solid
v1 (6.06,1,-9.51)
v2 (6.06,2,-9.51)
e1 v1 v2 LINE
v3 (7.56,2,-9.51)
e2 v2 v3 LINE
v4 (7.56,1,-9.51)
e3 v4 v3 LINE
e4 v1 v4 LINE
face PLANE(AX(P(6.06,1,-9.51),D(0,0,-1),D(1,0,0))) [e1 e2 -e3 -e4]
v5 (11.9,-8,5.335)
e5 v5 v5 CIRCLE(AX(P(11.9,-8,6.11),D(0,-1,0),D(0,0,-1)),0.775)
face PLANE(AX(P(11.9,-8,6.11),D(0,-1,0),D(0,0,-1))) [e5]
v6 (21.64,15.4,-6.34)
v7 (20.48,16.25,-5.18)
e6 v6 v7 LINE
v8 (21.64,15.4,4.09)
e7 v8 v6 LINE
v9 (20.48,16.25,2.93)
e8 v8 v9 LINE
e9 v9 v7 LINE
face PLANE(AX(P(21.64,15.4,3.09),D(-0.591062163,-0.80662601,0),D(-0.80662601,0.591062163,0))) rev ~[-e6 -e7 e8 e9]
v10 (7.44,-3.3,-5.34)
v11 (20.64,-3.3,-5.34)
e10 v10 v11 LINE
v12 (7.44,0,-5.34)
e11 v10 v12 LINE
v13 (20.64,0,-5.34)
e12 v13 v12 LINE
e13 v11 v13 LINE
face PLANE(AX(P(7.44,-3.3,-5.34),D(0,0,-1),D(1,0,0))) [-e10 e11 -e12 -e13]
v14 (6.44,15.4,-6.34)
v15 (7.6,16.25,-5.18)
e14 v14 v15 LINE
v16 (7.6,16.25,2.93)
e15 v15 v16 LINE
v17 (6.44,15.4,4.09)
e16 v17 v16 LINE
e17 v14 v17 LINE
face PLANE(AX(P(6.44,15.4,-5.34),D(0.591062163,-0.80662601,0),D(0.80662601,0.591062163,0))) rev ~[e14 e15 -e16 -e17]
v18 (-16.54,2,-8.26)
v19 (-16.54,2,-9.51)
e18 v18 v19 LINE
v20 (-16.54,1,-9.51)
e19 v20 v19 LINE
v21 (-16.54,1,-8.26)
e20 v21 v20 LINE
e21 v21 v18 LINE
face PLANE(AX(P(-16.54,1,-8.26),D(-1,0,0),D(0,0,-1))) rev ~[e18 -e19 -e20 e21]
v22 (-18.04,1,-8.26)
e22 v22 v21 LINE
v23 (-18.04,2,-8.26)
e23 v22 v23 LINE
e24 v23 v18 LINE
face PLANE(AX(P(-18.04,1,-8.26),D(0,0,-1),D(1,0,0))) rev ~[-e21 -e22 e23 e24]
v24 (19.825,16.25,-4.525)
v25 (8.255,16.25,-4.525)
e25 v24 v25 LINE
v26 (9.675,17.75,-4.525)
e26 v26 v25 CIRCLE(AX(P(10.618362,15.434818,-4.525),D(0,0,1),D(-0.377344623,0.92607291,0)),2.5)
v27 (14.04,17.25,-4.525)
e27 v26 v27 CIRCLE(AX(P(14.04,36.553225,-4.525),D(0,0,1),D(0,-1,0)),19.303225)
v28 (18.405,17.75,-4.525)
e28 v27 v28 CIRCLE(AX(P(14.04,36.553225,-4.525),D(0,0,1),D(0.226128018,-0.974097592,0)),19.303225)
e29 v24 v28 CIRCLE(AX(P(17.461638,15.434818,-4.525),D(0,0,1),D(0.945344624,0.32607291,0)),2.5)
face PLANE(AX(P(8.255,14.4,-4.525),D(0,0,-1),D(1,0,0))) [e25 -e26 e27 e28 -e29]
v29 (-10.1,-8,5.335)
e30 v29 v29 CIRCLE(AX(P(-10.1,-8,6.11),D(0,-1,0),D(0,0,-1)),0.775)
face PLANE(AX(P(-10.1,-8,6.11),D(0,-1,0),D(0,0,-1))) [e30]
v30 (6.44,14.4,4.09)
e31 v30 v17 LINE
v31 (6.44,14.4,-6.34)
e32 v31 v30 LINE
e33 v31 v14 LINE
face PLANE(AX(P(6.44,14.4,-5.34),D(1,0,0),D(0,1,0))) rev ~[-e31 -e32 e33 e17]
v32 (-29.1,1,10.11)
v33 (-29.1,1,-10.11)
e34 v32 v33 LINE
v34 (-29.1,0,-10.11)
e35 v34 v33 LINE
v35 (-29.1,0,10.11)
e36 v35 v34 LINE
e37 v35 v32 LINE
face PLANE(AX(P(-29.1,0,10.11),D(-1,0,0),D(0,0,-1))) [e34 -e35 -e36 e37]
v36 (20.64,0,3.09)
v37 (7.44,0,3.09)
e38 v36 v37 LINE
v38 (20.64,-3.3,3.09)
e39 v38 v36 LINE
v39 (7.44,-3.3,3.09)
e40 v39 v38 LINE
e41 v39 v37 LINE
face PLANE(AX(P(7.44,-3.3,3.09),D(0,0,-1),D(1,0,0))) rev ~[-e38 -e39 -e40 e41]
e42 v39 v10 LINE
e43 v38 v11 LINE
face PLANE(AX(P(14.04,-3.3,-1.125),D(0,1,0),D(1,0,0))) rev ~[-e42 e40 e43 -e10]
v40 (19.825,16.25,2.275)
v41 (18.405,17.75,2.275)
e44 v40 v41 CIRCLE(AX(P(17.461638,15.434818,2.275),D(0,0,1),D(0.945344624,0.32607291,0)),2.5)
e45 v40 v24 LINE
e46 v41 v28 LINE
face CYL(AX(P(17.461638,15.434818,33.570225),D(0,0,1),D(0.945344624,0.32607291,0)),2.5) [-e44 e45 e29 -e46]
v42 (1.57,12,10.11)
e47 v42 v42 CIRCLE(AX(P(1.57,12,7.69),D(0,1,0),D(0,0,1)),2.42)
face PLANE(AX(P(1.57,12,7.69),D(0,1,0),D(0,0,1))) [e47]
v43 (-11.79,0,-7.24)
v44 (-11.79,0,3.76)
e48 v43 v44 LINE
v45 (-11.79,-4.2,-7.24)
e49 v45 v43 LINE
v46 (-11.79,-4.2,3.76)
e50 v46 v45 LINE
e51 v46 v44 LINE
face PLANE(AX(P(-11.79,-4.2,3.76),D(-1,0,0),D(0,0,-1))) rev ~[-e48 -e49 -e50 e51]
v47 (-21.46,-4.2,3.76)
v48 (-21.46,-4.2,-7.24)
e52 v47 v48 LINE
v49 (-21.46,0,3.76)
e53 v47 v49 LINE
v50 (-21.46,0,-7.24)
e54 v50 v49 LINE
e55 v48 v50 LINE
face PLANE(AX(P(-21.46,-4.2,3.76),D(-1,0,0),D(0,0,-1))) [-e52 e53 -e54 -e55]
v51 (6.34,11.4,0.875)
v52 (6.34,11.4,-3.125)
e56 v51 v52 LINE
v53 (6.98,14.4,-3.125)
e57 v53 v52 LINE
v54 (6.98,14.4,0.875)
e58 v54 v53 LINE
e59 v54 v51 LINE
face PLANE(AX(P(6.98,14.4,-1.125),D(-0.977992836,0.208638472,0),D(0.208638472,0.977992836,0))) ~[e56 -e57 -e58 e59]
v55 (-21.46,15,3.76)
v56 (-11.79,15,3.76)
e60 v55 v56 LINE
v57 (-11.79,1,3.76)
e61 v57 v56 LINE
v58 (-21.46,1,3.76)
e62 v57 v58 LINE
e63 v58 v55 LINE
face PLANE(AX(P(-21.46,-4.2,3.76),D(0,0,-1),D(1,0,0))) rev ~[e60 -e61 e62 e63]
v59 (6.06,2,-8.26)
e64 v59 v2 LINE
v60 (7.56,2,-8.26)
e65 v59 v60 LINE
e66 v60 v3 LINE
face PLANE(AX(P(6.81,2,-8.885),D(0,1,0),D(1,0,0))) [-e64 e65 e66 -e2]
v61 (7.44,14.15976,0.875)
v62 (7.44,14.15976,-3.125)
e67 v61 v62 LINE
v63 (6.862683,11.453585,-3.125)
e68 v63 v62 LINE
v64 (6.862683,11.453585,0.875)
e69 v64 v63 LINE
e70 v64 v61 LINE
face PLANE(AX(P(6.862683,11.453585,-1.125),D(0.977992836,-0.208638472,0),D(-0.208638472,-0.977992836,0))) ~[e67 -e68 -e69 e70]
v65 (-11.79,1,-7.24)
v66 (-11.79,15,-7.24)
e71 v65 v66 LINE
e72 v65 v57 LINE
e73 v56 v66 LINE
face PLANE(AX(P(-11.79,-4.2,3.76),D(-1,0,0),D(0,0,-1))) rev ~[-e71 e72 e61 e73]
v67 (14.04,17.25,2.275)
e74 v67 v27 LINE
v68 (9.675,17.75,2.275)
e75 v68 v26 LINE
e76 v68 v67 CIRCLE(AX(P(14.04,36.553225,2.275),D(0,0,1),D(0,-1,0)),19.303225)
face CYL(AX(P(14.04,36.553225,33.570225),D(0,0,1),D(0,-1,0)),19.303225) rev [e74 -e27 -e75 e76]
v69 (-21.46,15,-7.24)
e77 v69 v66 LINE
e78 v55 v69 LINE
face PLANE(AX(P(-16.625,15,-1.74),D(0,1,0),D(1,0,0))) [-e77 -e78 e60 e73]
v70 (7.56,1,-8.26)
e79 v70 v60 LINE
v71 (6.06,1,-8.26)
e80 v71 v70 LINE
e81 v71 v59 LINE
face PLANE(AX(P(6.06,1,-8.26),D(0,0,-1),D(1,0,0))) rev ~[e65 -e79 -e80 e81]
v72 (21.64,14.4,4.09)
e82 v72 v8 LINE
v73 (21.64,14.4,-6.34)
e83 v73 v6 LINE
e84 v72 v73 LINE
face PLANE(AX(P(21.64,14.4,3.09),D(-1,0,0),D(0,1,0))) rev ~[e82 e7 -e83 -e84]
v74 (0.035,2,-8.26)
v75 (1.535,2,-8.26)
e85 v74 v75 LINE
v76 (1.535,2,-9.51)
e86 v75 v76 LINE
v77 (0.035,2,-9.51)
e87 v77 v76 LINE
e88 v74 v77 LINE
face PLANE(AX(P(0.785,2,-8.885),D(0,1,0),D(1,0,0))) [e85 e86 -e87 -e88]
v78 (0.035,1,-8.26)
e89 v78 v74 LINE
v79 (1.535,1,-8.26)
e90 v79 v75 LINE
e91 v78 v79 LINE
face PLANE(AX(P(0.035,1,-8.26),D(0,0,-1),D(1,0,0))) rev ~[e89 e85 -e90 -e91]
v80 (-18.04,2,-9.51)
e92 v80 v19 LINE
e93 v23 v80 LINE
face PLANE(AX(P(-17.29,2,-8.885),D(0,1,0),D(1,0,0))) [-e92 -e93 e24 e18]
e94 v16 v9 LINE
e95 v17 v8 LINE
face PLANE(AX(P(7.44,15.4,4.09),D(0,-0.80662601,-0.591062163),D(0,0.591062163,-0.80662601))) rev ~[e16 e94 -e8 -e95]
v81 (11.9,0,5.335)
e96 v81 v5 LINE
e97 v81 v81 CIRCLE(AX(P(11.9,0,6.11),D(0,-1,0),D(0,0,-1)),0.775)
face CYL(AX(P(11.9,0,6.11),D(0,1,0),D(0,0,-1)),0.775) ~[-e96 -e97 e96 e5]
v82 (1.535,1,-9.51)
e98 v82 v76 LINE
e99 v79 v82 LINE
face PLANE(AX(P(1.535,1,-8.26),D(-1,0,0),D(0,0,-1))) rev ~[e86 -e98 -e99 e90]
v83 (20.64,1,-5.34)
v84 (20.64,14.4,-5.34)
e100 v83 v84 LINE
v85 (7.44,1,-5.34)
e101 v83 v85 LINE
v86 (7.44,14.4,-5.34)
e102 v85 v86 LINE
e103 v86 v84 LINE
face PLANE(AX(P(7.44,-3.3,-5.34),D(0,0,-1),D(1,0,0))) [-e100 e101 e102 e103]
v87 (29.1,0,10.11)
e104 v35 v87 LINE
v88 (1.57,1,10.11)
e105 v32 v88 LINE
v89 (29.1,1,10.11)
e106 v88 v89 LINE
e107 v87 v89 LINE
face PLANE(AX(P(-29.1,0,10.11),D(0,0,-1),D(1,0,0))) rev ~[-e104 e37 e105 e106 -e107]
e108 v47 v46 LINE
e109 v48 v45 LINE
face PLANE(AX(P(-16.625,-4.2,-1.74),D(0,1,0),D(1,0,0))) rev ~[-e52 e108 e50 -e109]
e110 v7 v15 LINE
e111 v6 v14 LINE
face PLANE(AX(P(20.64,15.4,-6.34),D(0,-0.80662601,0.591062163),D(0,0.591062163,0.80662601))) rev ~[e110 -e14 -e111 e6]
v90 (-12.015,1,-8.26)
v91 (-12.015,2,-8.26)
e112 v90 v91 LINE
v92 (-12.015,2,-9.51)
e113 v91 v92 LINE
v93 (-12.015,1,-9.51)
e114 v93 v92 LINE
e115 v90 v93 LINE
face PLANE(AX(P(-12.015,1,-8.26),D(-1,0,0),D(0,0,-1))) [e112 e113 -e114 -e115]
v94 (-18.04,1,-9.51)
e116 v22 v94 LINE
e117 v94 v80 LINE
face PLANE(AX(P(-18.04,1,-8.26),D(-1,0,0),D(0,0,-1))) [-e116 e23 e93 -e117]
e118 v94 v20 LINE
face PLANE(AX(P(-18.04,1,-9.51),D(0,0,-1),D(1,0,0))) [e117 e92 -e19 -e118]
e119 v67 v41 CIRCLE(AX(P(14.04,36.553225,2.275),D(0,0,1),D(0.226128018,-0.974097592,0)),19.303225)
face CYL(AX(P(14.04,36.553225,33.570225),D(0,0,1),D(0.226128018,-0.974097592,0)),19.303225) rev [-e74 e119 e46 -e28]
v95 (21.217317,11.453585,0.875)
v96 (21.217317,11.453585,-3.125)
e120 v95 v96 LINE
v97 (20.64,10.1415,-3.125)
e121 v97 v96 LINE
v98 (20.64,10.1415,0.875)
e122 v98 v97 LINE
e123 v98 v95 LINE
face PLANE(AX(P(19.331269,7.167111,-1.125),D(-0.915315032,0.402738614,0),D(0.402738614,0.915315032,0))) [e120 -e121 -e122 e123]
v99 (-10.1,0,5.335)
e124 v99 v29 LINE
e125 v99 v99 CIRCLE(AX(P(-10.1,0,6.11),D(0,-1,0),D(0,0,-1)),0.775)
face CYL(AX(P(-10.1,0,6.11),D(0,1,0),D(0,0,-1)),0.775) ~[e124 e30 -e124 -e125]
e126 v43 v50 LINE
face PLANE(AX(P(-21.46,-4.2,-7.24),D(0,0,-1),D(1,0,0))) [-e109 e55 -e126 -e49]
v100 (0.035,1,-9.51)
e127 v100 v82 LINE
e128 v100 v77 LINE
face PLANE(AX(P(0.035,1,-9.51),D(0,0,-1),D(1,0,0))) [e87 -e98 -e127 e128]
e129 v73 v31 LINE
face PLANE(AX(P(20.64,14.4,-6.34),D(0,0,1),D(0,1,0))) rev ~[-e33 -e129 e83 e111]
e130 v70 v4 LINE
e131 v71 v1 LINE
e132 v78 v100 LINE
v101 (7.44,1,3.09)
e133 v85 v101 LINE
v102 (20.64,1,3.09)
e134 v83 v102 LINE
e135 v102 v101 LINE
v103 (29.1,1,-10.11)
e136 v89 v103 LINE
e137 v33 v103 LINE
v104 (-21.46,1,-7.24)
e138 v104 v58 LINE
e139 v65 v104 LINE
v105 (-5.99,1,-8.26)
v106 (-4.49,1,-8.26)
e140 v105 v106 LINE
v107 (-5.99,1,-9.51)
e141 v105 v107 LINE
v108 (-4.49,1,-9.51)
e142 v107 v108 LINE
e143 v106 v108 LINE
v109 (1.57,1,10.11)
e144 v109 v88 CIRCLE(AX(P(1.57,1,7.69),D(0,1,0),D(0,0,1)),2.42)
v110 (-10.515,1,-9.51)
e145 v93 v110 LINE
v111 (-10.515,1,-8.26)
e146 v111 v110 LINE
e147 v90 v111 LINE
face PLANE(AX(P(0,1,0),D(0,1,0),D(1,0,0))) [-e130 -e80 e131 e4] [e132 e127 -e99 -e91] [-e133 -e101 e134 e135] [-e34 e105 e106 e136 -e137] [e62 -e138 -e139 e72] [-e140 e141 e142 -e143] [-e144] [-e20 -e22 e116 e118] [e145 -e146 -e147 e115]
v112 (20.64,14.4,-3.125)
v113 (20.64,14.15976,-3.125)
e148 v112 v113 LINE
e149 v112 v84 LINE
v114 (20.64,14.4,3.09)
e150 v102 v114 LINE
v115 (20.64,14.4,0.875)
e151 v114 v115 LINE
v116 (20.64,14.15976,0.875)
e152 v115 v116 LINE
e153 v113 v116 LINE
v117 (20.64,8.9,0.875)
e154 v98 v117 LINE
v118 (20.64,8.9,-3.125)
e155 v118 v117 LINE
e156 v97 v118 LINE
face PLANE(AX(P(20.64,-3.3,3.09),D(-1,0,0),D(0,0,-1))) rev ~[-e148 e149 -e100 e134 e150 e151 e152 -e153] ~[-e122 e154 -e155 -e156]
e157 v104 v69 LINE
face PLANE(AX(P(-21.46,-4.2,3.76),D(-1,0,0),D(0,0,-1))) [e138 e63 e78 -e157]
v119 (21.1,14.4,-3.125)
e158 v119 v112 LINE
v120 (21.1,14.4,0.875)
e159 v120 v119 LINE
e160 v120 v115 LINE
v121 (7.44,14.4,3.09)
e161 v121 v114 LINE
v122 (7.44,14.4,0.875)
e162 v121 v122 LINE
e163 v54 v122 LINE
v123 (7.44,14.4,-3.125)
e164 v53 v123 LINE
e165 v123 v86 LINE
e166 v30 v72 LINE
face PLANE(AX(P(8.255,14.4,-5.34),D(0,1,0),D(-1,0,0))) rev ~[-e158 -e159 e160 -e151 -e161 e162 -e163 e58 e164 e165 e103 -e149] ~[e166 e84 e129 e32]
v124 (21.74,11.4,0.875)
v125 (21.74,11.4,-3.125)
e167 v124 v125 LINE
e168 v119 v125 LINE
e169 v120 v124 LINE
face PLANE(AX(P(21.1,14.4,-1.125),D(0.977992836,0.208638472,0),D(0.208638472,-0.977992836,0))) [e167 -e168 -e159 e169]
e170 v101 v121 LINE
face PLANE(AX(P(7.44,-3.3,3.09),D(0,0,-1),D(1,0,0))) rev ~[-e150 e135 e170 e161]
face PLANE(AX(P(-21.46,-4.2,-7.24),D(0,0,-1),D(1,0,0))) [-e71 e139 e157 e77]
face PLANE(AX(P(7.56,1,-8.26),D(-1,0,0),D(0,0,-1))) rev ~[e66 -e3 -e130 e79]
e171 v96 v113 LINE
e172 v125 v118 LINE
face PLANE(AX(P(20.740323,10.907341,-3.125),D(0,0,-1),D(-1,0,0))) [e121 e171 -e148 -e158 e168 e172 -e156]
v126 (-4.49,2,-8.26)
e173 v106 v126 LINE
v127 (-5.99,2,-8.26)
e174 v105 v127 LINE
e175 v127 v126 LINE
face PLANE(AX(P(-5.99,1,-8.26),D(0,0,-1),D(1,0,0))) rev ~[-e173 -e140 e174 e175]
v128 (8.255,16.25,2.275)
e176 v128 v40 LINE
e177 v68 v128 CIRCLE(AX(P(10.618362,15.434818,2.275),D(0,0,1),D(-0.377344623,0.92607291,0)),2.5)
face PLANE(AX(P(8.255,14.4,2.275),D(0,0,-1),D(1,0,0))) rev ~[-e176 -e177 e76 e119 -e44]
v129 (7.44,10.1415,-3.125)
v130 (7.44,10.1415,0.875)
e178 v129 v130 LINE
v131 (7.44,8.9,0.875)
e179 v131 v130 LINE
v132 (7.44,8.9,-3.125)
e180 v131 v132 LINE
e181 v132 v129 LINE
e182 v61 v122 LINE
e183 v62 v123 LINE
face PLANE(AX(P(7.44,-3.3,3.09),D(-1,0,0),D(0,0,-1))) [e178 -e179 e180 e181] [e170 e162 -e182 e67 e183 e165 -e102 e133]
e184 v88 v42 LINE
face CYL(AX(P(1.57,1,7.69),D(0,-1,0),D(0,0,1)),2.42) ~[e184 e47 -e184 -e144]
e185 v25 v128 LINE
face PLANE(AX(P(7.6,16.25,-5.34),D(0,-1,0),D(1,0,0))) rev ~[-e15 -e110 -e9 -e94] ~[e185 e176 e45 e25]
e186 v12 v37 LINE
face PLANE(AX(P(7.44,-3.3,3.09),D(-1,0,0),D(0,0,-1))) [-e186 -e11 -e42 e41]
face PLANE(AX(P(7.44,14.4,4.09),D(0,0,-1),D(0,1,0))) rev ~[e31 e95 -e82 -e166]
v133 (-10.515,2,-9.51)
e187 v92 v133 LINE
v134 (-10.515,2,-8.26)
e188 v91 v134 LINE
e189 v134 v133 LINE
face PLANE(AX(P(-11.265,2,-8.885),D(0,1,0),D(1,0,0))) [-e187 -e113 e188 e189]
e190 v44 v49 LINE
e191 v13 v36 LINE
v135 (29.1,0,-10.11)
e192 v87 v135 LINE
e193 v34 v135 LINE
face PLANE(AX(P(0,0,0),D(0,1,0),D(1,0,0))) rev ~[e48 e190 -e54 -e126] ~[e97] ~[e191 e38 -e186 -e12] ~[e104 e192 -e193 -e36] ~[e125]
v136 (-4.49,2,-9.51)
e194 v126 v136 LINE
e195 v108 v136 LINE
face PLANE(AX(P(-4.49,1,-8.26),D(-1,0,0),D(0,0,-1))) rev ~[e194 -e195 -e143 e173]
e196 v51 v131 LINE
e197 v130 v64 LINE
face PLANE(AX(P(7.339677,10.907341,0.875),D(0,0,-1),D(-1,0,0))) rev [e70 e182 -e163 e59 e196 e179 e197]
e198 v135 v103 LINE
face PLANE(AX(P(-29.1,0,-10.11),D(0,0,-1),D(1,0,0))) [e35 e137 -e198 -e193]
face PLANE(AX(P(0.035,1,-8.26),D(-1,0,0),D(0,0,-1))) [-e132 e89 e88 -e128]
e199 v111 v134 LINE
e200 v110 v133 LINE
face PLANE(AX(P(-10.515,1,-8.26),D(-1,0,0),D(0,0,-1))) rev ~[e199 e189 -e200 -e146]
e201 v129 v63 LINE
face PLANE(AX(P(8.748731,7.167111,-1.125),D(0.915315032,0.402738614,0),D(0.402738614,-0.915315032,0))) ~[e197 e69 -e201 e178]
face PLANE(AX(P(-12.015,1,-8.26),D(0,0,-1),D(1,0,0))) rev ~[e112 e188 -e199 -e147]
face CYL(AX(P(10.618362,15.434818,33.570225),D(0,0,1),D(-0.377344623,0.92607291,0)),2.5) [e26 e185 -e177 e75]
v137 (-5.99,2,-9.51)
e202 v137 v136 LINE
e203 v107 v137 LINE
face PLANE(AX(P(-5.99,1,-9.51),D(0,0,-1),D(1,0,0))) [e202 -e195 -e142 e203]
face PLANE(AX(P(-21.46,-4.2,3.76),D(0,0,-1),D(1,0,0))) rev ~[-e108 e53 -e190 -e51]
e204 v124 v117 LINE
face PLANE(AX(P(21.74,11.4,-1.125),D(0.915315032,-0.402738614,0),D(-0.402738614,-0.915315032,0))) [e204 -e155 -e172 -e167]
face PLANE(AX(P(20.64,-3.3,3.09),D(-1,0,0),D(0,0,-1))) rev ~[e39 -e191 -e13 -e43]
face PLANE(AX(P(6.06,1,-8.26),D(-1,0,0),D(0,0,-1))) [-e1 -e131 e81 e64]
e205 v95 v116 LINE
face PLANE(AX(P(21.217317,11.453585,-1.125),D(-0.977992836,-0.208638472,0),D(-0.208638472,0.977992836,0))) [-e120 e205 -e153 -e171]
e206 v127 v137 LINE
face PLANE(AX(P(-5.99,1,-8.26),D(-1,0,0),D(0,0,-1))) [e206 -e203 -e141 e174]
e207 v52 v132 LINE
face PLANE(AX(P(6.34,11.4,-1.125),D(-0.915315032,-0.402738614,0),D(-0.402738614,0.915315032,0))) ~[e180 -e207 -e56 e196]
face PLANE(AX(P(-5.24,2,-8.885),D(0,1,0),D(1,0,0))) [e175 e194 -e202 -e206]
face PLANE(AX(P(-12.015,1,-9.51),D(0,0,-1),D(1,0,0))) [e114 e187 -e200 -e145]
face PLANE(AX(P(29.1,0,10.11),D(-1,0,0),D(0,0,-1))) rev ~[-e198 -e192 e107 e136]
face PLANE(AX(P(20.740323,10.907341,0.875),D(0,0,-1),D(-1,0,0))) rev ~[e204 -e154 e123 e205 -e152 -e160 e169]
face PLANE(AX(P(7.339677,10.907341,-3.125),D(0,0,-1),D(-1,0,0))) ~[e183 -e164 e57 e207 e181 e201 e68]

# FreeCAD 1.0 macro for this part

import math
import FreeCAD as App
import Part
import Sketcher
from FreeCAD import Vector

doc = App.newDocument("Part")
params = doc.addObject("Spreadsheet::Sheet", "Params")
for row, (alias, value) in enumerate([
    ("sketch1_width", "58.2 mm"),
    ("sketch1_height", "20.22 mm"),
    ("pad1_length", "1 mm"),
    ("sketch2_height", "11 mm"),
    ("sketch2_width", "9.67 mm"),
    ("pad2_length", "14 mm"),
    ("pad2_length2", "5.2 mm"),
    ("sketch3_diameter", "4.84 mm"),
    ("pad3_length", "11 mm"),
    ("sketch4_width", "13.2 mm"),
    ("sketch4_height", "8.43 mm"),
    ("pad4_length", "13.4 mm"),
    ("pad4_length2", "4.3 mm"),
    ("sketch5_width", "1 mm"),
    ("sketch5_width2", "1.85 mm"),
    ("sketch6_width", "13.2 mm"),
    ("sketch6_height", "8.43 mm"),
    ("sketch7_height", "6.8 mm"),
    ("sketch7_width", "11.57 mm"),
    ("pad5_length", "3.35 mm"),
    ("sketch8_radius", "2.5 mm"),
    ("sketch8_height", "1.5 mm"),
    ("sketch8_width", "1.42 mm"),
    ("sketch8_width2", "8.73 mm"),
    ("sketch9_length", "0.5 mm"),
    ("pad6_length", "4 mm"),
    ("sketch10_diameter", "1.55 mm"),
    ("pad7_length", "8 mm"),
    ("sketch11_width", "1.5 mm"),
    ("sketch11_height", "1.25 mm"),
    ("pad8_length", "1 mm"),
], start=1):
    params.set(f"A{row}", alias)
    params.set(f"B{row}", "=" + value)
    params.setAlias(f"B{row}", alias)

body = doc.addObject("PartDesign::Body", "Body")

sketch1 = doc.addObject("Sketcher::SketchObject", "Sketch")
body.addObject(sketch1)
sketch1.AttachmentSupport = (doc.XZ_Plane, [""])
sketch1.MapMode = "FlatFace"
sketch1.addGeometry([
    Part.LineSegment(Vector(-29.1, -10.11, 0), Vector(-29.1, 10.11, 0)),
    Part.LineSegment(Vector(-29.1, 10.11, 0), Vector(29.1, 10.11, 0)),
    Part.LineSegment(Vector(29.1, 10.11, 0), Vector(29.1, -10.11, 0)),
    Part.LineSegment(Vector(29.1, -10.11, 0), Vector(-29.1, -10.11, 0)),
], False)
sketch1.addConstraint([
    Sketcher.Constraint("Coincident", 0, 2, 1, 1),
    Sketcher.Constraint("Coincident", 1, 2, 2, 1),
    Sketcher.Constraint("Coincident", 2, 2, 3, 1),
    Sketcher.Constraint("Coincident", 3, 2, 0, 1),
    Sketcher.Constraint("Vertical", 0),
    Sketcher.Constraint("Horizontal", 1),
    Sketcher.Constraint("Vertical", 2),
    Sketcher.Constraint("Horizontal", 3),
    Sketcher.Constraint("Symmetric", 0, 2, 2, 2, -1, 1),
    Sketcher.Constraint("DistanceX", 1, 1, 1, 2, 58.2),
    Sketcher.Constraint("DistanceY", 0, 1, 0, 2, 20.22),
])
sketch1.setExpression("Constraints[9]", "Params.sketch1_width")
sketch1.setExpression("Constraints[10]", "Params.sketch1_height")
pad1 = doc.addObject("PartDesign::Pad", "Pad")
body.addObject(pad1)
pad1.Profile = sketch1
pad1.setExpression("Length", "Params.pad1_length")
pad1.Reversed = True

sketch2 = doc.addObject("Sketcher::SketchObject", "Sketch001")
body.addObject(sketch2)
sketch2.AttachmentSupport = (doc.XZ_Plane, [""])
sketch2.MapMode = "FlatFace"
sketch2.AttachmentOffset = App.Placement(Vector(0, 0, -1), App.Rotation())
sketch2.addGeometry([
    Part.LineSegment(Vector(-21.46, -7.24, 0), Vector(-21.46, 3.76, 0)),
    Part.LineSegment(Vector(-21.46, 3.76, 0), Vector(-11.79, 3.76, 0)),
    Part.LineSegment(Vector(-11.79, 3.76, 0), Vector(-11.79, -7.24, 0)),
    Part.LineSegment(Vector(-11.79, -7.24, 0), Vector(-21.46, -7.24, 0)),
], False)
sketch2.addConstraint([
    Sketcher.Constraint("Coincident", 0, 2, 1, 1),
    Sketcher.Constraint("Coincident", 1, 2, 2, 1),
    Sketcher.Constraint("Coincident", 2, 2, 3, 1),
    Sketcher.Constraint("Coincident", 3, 2, 0, 1),
    Sketcher.Constraint("Vertical", 0),
    Sketcher.Constraint("Horizontal", 1),
    Sketcher.Constraint("Vertical", 2),
    Sketcher.Constraint("Horizontal", 3),
    Sketcher.Constraint("DistanceY", 0, 1, 0, 2, 11.0),
    Sketcher.Constraint("DistanceX", 1, 1, 1, 2, 9.67),
    Sketcher.Constraint("DistanceX", 0, 2, -1, 1, 21.46),
    Sketcher.Constraint("DistanceY", -1, 1, 0, 2, 3.76),
])
sketch2.setExpression("Constraints[8]", "Params.sketch2_height")
sketch2.setExpression("Constraints[9]", "Params.sketch2_width")
pad2 = doc.addObject("PartDesign::Pad", "Pad001")
body.addObject(pad2)
pad2.Profile = sketch2
pad2.Type = "TwoLengths"
pad2.setExpression("Length", "Params.pad2_length")
pad2.setExpression("Length2", "Params.pad2_length2")
pad2.Reversed = True

sketch3 = doc.addObject("Sketcher::SketchObject", "Sketch002")
body.addObject(sketch3)
sketch3.AttachmentSupport = (doc.XZ_Plane, [""])
sketch3.MapMode = "FlatFace"
sketch3.AttachmentOffset = App.Placement(Vector(0, 0, -1), App.Rotation())
sketch3.addGeometry(Part.Circle(Vector(1.57, 7.69, 0), Vector(0, 0, 1), 2.42), False)
sketch3.addConstraint([
    Sketcher.Constraint("Diameter", 0, 4.84),
    Sketcher.Constraint("DistanceX", -1, 1, 0, 3, 1.57),
    Sketcher.Constraint("DistanceY", -1, 1, 0, 3, 7.69),
])
sketch3.setExpression("Constraints[0]", "Params.sketch3_diameter")
pad3 = doc.addObject("PartDesign::Pad", "Pad002")
body.addObject(pad3)
pad3.Profile = sketch3
pad3.setExpression("Length", "Params.pad3_length")
pad3.Reversed = True

sketch4 = doc.addObject("Sketcher::SketchObject", "Sketch003")
body.addObject(sketch4)
sketch4.AttachmentSupport = (doc.XZ_Plane, [""])
sketch4.MapMode = "FlatFace"
sketch4.AttachmentOffset = App.Placement(Vector(0, 0, -1), App.Rotation())
sketch4.addGeometry([
    Part.LineSegment(Vector(7.44, -5.34, 0), Vector(7.44, 3.09, 0)),
    Part.LineSegment(Vector(7.44, 3.09, 0), Vector(20.64, 3.09, 0)),
    Part.LineSegment(Vector(20.64, 3.09, 0), Vector(20.64, -5.34, 0)),
    Part.LineSegment(Vector(20.64, -5.34, 0), Vector(7.44, -5.34, 0)),
], False)
sketch4.addConstraint([
    Sketcher.Constraint("Coincident", 0, 2, 1, 1),
    Sketcher.Constraint("Coincident", 1, 2, 2, 1),
    Sketcher.Constraint("Coincident", 2, 2, 3, 1),
    Sketcher.Constraint("Coincident", 3, 2, 0, 1),
    Sketcher.Constraint("Vertical", 0),
    Sketcher.Constraint("Horizontal", 1),
    Sketcher.Constraint("Vertical", 2),
    Sketcher.Constraint("Horizontal", 3),
    Sketcher.Constraint("DistanceX", 1, 1, 1, 2, 13.2),
    Sketcher.Constraint("DistanceY", 0, 1, 0, 2, 8.43),
    Sketcher.Constraint("DistanceX", -1, 1, 0, 2, 7.44),
    Sketcher.Constraint("DistanceY", -1, 1, 0, 2, 3.09),
])
sketch4.setExpression("Constraints[8]", "Params.sketch4_width")
sketch4.setExpression("Constraints[9]", "Params.sketch4_height")
pad4 = doc.addObject("PartDesign::Pad", "Pad003")
body.addObject(pad4)
pad4.Profile = sketch4
pad4.Type = "TwoLengths"
pad4.setExpression("Length", "Params.pad4_length")
pad4.setExpression("Length2", "Params.pad4_length2")
pad4.Reversed = True

sketch5 = doc.addObject("Sketcher::SketchObject", "Sketch004")
body.addObject(sketch5)
sketch5.AttachmentSupport = (doc.YZ_Plane, [""])
sketch5.MapMode = "FlatFace"
sketch5.AttachmentOffset = App.Placement(Vector(0, 0, 7.44), App.Rotation())
sketch5.addGeometry([
    Part.LineSegment(Vector(14.4, 4.09, 0), Vector(15.4, 4.09, 0)),
    Part.LineSegment(Vector(15.4, 4.09, 0), Vector(16.25, 2.93, 0)),
    Part.LineSegment(Vector(16.25, 2.93, 0), Vector(16.25, 2.275, 0)),
    Part.LineSegment(Vector(16.25, 2.275, 0), Vector(14.4, 2.275, 0)),
    Part.LineSegment(Vector(14.4, 2.275, 0), Vector(14.4, 4.09, 0)),
], False)
sketch5.addConstraint([
    Sketcher.Constraint("Coincident", 0, 2, 1, 1),
    Sketcher.Constraint("Coincident", 1, 2, 2, 1),
    Sketcher.Constraint("Coincident", 2, 2, 3, 1),
    Sketcher.Constraint("Coincident", 3, 2, 4, 1),
    Sketcher.Constraint("Coincident", 4, 2, 0, 1),
    Sketcher.Constraint("Horizontal", 0),
    Sketcher.Constraint("Vertical", 2),
    Sketcher.Constraint("Horizontal", 3),
    Sketcher.Constraint("Vertical", 4),
    Sketcher.Constraint("DistanceX", 0, 1, 0, 2, 1.0),
    Sketcher.Constraint("DistanceX", 3, 2, 3, 1, 1.85),
    Sketcher.Constraint("DistanceX", -1, 1, 0, 2, 15.4),
    Sketcher.Constraint("DistanceY", 2, 2, 2, 1, 0.655),
    Sketcher.Constraint("DistanceY", 4, 1, 4, 2, 1.815),
    Sketcher.Constraint("DistanceY", -1, 1, 0, 2, 4.09),
])
sketch5.setExpression("Constraints[9]", "Params.sketch5_width")
sketch5.setExpression("Constraints[10]", "Params.sketch5_width2")

sketch6 = doc.addObject("Sketcher::SketchObject", "Sketch005")
body.addObject(sketch6)
sketch6.AttachmentSupport = (doc.XZ_Plane, [""])
sketch6.MapMode = "FlatFace"
sketch6.AttachmentOffset = App.Placement(Vector(0, 0, -14.4), App.Rotation())
sketch6.addGeometry([
    Part.LineSegment(Vector(7.44, -5.34, 0), Vector(7.44, 3.09, 0)),
    Part.LineSegment(Vector(7.44, 3.09, 0), Vector(20.64, 3.09, 0)),
    Part.LineSegment(Vector(20.64, 3.09, 0), Vector(20.64, -5.34, 0)),
    Part.LineSegment(Vector(20.64, -5.34, 0), Vector(7.44, -5.34, 0)),
], False)
sketch6.addConstraint([
    Sketcher.Constraint("Coincident", 0, 2, 1, 1),
    Sketcher.Constraint("Coincident", 1, 2, 2, 1),
    Sketcher.Constraint("Coincident", 2, 2, 3, 1),
    Sketcher.Constraint("Coincident", 3, 2, 0, 1),
    Sketcher.Constraint("Vertical", 0),
    Sketcher.Constraint("Horizontal", 1),
    Sketcher.Constraint("Vertical", 2),
    Sketcher.Constraint("Horizontal", 3),
    Sketcher.Constraint("DistanceX", 1, 1, 1, 2, 13.2),
    Sketcher.Constraint("DistanceY", 0, 1, 0, 2, 8.43),
    Sketcher.Constraint("DistanceX", -1, 1, 0, 2, 7.44),
    Sketcher.Constraint("DistanceY", -1, 1, 0, 2, 3.09),
])
sketch6.setExpression("Constraints[8]", "Params.sketch6_width")
sketch6.setExpression("Constraints[9]", "Params.sketch6_height")
doc.recompute()

additivepipe = doc.addObject("PartDesign::AdditivePipe", "AdditivePipe")
body.addObject(additivepipe)
additivepipe.Profile = sketch5
additivepipe.Spine = (sketch6, ["Edge1", "Edge2", "Edge3", "Edge4"])
additivepipe.Transition = "Right corner"

sketch7 = doc.addObject("Sketcher::SketchObject", "Sketch006")
body.addObject(sketch7)
sketch7.AttachmentSupport = (doc.XZ_Plane, [""])
sketch7.MapMode = "FlatFace"
sketch7.AttachmentOffset = App.Placement(Vector(0, 0, -14.4), App.Rotation())
sketch7.addGeometry([
    Part.LineSegment(Vector(8.255, -4.525, 0), Vector(8.255, 2.275, 0)),
    Part.LineSegment(Vector(8.255, 2.275, 0), Vector(19.825, 2.275, 0)),
    Part.LineSegment(Vector(19.825, 2.275, 0), Vector(19.825, -4.525, 0)),
    Part.LineSegment(Vector(19.825, -4.525, 0), Vector(8.255, -4.525, 0)),
], False)
sketch7.addConstraint([
    Sketcher.Constraint("Coincident", 0, 2, 1, 1),
    Sketcher.Constraint("Coincident", 1, 2, 2, 1),
    Sketcher.Constraint("Coincident", 2, 2, 3, 1),
    Sketcher.Constraint("Coincident", 3, 2, 0, 1),
    Sketcher.Constraint("Vertical", 0),
    Sketcher.Constraint("Horizontal", 1),
    Sketcher.Constraint("Vertical", 2),
    Sketcher.Constraint("Horizontal", 3),
    Sketcher.Constraint("DistanceY", 0, 1, 0, 2, 6.8),
    Sketcher.Constraint("DistanceX", 1, 1, 1, 2, 11.57),
    Sketcher.Constraint("DistanceX", -1, 1, 0, 2, 8.255),
    Sketcher.Constraint("DistanceY", -1, 1, 0, 2, 2.275),
])
sketch7.setExpression("Constraints[8]", "Params.sketch7_height")
sketch7.setExpression("Constraints[9]", "Params.sketch7_width")
pad5 = doc.addObject("PartDesign::Pad", "Pad004")
body.addObject(pad5)
pad5.Profile = sketch7
pad5.setExpression("Length", "Params.pad5_length")
pad5.Reversed = True

sketch8 = doc.addObject("Sketcher::SketchObject", "Sketch007")
body.addObject(sketch8)
sketch8.AttachmentSupport = (doc.XY_Plane, [""])
sketch8.MapMode = "FlatFace"
sketch8.AttachmentOffset = App.Placement(Vector(0, 0, -4.525), App.Rotation())
sketch8.addGeometry([
    Part.ArcOfCircle(Part.Circle(Vector(17.461638, 15.434818, 0), Vector(0, 0, 1), 2.5), math.radians(19.03059), math.radians(67.830701)),
    Part.LineSegment(Vector(18.405, 17.75, 0), Vector(19.825, 17.75, 0)),
    Part.LineSegment(Vector(19.825, 17.75, 0), Vector(19.825, 16.25, 0)),
    Part.ArcOfCircle(Part.Circle(Vector(14.04, 36.553225, 0), Vector(0, 0, 1), 19.303225), math.radians(-90), math.radians(-76.930781)),
    Part.ArcOfCircle(Part.Circle(Vector(14.04, 36.553225, 0), Vector(0, 0, 1), 19.303225), math.radians(-103.069219), math.radians(-90)),
    Part.LineSegment(Vector(9.675, 17.75, 0), Vector(18.405, 17.75, 0)),
    Part.LineSegment(Vector(8.255, 17.75, 0), Vector(9.675, 17.75, 0)),
    Part.ArcOfCircle(Part.Circle(Vector(10.618362, 15.434818, 0), Vector(0, 0, 1), 2.5), math.radians(112.169299), math.radians(160.96941)),
    Part.LineSegment(Vector(8.255, 16.25, 0), Vector(8.255, 17.75, 0)),
], False)
sketch8.addConstraint([
    Sketcher.Constraint("Coincident", 0, 2, 1, 1),
    Sketcher.Constraint("Coincident", 1, 2, 2, 1),
    Sketcher.Constraint("Coincident", 2, 2, 0, 1),
    Sketcher.Constraint("Tangent", 3, 1, 4, 2),
    Sketcher.Constraint("Coincident", 4, 1, 5, 1),
    Sketcher.Constraint("Coincident", 5, 2, 3, 2),
    Sketcher.Constraint("Coincident", 6, 2, 7, 1),
    Sketcher.Constraint("Coincident", 7, 2, 8, 1),
    Sketcher.Constraint("Coincident", 8, 2, 6, 1),
    Sketcher.Constraint("Horizontal", 1),
    Sketcher.Constraint("Vertical", 2),
    Sketcher.Constraint("Horizontal", 5),
    Sketcher.Constraint("Horizontal", 6),
    Sketcher.Constraint("Vertical", 8),
    Sketcher.Constraint("Coincident", 5, 2, 0, 2),
    Sketcher.Constraint("Coincident", 6, 2, 4, 1),
    Sketcher.Constraint("Equal", 3, 4),
    Sketcher.Constraint("Equal", 0, 7),
    Sketcher.Constraint("Horizontal", 0, 3, 7, 3),
    Sketcher.Constraint("Horizontal", 2, 2, 7, 2),
    Sketcher.Constraint("Vertical", 4, 3, 3, 1),
    Sketcher.Constraint("Radius", 0, 2.5),
    Sketcher.Constraint("DistanceY", 2, 2, 2, 1, 1.5),
    Sketcher.Constraint("DistanceY", 2, 2, 3, 1, 1.0),
    Sketcher.Constraint("DistanceX", 1, 1, 1, 2, 1.42),
    Sketcher.Constraint("DistanceX", 5, 1, 5, 2, 8.73),
    Sketcher.Constraint("DistanceX", -1, 1, 3, 3, 14.04),
    Sketcher.Constraint("DistanceY", -1, 1, 0, 2, 17.75),
])
sketch8.setExpression("Constraints[21]", "Params.sketch8_radius")
sketch8.setExpression("Constraints[22]", "Params.sketch8_height")
sketch8.setExpression("Constraints[24]", "Params.sketch8_width")
sketch8.setExpression("Constraints[25]", "Params.sketch8_width2")
pocket1 = doc.addObject("PartDesign::Pocket", "Pocket")
body.addObject(pocket1)
pocket1.Profile = sketch8
pocket1.Type = "ThroughAll"
pocket1.Midplane = True

sketch9 = doc.addObject("Sketcher::SketchObject", "Sketch008")
body.addObject(sketch9)
sketch9.AttachmentSupport = (doc.XY_Plane, [""])
sketch9.MapMode = "FlatFace"
sketch9.AttachmentOffset = App.Placement(Vector(0, 0, -1.125), App.Rotation())
sketch9.addGeometry([
    Part.LineSegment(Vector(20.988854, 14.920998, 0), Vector(21.1, 14.4, 0)),
    Part.LineSegment(Vector(21.1, 14.4, 0), Vector(21.74, 11.4, 0)),
    Part.LineSegment(Vector(21.74, 11.4, 0), Vector(19.788926, 6.965742, 0)),
    Part.LineSegment(Vector(19.788926, 6.965742, 0), Vector(19.331269, 7.167111, 0)),
    Part.LineSegment(Vector(19.331269, 7.167111, 0), Vector(21.217317, 11.453585, 0)),
    Part.LineSegment(Vector(21.217317, 11.453585, 0), Vector(20.611004, 14.295681, 0)),
    Part.LineSegment(Vector(20.611004, 14.295681, 0), Vector(20.499857, 14.816679, 0)),
    Part.LineSegment(Vector(20.499857, 14.816679, 0), Vector(20.988854, 14.920998, 0)),
], False)
sketch9.addConstraint([
    Sketcher.Constraint("Coincident", 0, 2, 1, 1),
    Sketcher.Constraint("Coincident", 1, 2, 2, 1),
    Sketcher.Constraint("Coincident", 2, 2, 3, 1),
    Sketcher.Constraint("Coincident", 3, 2, 4, 1),
    Sketcher.Constraint("Coincident", 4, 2, 5, 1),
    Sketcher.Constraint("Coincident", 5, 2, 6, 1),
    Sketcher.Constraint("Coincident", 6, 2, 7, 1),
    Sketcher.Constraint("Coincident", 7, 2, 0, 1),
    Sketcher.Constraint("Parallel", 0, 1),
    Sketcher.Constraint("Perpendicular", 2, 3),
    Sketcher.Constraint("Perpendicular", 3, 4),
    Sketcher.Constraint("Parallel", 1, 5),
    Sketcher.Constraint("Parallel", 5, 6),
    Sketcher.Constraint("Perpendicular", 6, 7),
    Sketcher.Constraint("Equal", 0, 6),
    Sketcher.Constraint("Equal", 3, 7),
    Sketcher.Constraint("DistanceY", 1, 2, 0, 2, 3.0),
    Sketcher.Constraint("Distance", 3, 0.5),
    Sketcher.Constraint("DistanceX", -1, 1, 0, 2, 21.1),
    Sketcher.Constraint("DistanceY", -1, 1, 0, 2, 14.4),
    Sketcher.Constraint("DistanceX", -1, 1, 1, 2, 21.74),
    Sketcher.Constraint("DistanceY", -1, 1, 7, 2, 14.920998),
    Sketcher.Constraint("Distance", 4, 4.683058),
    Sketcher.Constraint("Distance", 5, 2.90605),
])
sketch9.setExpression("Constraints[17]", "Params.sketch9_length")
pad6 = doc.addObject("PartDesign::Pad", "Pad005")
body.addObject(pad6)
pad6.Profile = sketch9
pad6.setExpression("Length", "Params.pad6_length")
pad6.Midplane = True
doc.recompute()

datumplane = doc.addObject("PartDesign::Plane", "DatumPlane")
body.addObject(datumplane)
datumplane.AttachmentSupport = (doc.YZ_Plane, [""])
datumplane.MapMode = "FlatFace"
datumplane.AttachmentOffset = App.Placement(Vector(0, 0, 14.04), App.Rotation())
mirrored = doc.addObject("PartDesign::Mirrored", "Mirrored")
body.addObject(mirrored)
mirrored.Originals = [pad6]
mirrored.MirrorPlane = (datumplane, [""])
body.Tip = mirrored

sketch10 = doc.addObject("Sketcher::SketchObject", "Sketch009")
body.addObject(sketch10)
sketch10.AttachmentSupport = (doc.XZ_Plane, [""])
sketch10.MapMode = "FlatFace"
sketch10.addGeometry([
    Part.Circle(Vector(-10.1, 6.11, 0), Vector(0, 0, 1), 0.775),
    Part.Circle(Vector(11.9, 6.11, 0), Vector(0, 0, 1), 0.775),
], False)
sketch10.addConstraint([
    Sketcher.Constraint("Equal", 0, 1),
    Sketcher.Constraint("Horizontal", 0, 3, 1, 3),
    Sketcher.Constraint("Diameter", 0, 1.55),
    Sketcher.Constraint("DistanceX", 0, 3, 1, 3, 22.0),
    Sketcher.Constraint("DistanceX", 0, 3, -1, 1, 10.1),
    Sketcher.Constraint("DistanceY", -1, 1, 0, 3, 6.11),
])
sketch10.setExpression("Constraints[2]", "Params.sketch10_diameter")
pad7 = doc.addObject("PartDesign::Pad", "Pad006")
body.addObject(pad7)
pad7.Profile = sketch10
pad7.setExpression("Length", "Params.pad7_length")

sketch11 = doc.addObject("Sketcher::SketchObject", "Sketch010")
body.addObject(sketch11)
sketch11.AttachmentSupport = (doc.XZ_Plane, [""])
sketch11.MapMode = "FlatFace"
sketch11.AttachmentOffset = App.Placement(Vector(0, 0, -1), App.Rotation())
sketch11.addGeometry([
    Part.LineSegment(Vector(-18.04, -9.51, 0), Vector(-18.04, -8.26, 0)),
    Part.LineSegment(Vector(-18.04, -8.26, 0), Vector(-16.54, -8.26, 0)),
    Part.LineSegment(Vector(-16.54, -8.26, 0), Vector(-16.54, -9.51, 0)),
    Part.LineSegment(Vector(-16.54, -9.51, 0), Vector(-18.04, -9.51, 0)),
    Part.LineSegment(Vector(-12.015, -9.51, 0), Vector(-12.015, -8.26, 0)),
    Part.LineSegment(Vector(-12.015, -8.26, 0), Vector(-10.515, -8.26, 0)),
    Part.LineSegment(Vector(-10.515, -8.26, 0), Vector(-10.515, -9.51, 0)),
    Part.LineSegment(Vector(-10.515, -9.51, 0), Vector(-12.015, -9.51, 0)),
    Part.LineSegment(Vector(-5.99, -9.51, 0), Vector(-5.99, -8.26, 0)),
    Part.LineSegment(Vector(-5.99, -8.26, 0), Vector(-4.49, -8.26, 0)),
    Part.LineSegment(Vector(-4.49, -8.26, 0), Vector(-4.49, -9.51, 0)),
    Part.LineSegment(Vector(-4.49, -9.51, 0), Vector(-5.99, -9.51, 0)),
    Part.LineSegment(Vector(0.035, -9.51, 0), Vector(0.035, -8.26, 0)),
    Part.LineSegment(Vector(0.035, -8.26, 0), Vector(1.535, -8.26, 0)),
    Part.LineSegment(Vector(1.535, -8.26, 0), Vector(1.535, -9.51, 0)),
    Part.LineSegment(Vector(1.535, -9.51, 0), Vector(0.035, -9.51, 0)),
    Part.LineSegment(Vector(6.06, -9.51, 0), Vector(6.06, -8.26, 0)),
    Part.LineSegment(Vector(6.06, -8.26, 0), Vector(7.56, -8.26, 0)),
    Part.LineSegment(Vector(7.56, -8.26, 0), Vector(7.56, -9.51, 0)),
    Part.LineSegment(Vector(7.56, -9.51, 0), Vector(6.06, -9.51, 0)),
], False)
sketch11.addConstraint([
    Sketcher.Constraint("Coincident", 0, 2, 1, 1),
    Sketcher.Constraint("Coincident", 1, 2, 2, 1),
    Sketcher.Constraint("Coincident", 2, 2, 3, 1),
    Sketcher.Constraint("Coincident", 3, 2, 0, 1),
    Sketcher.Constraint("Coincident", 4, 2, 5, 1),
    Sketcher.Constraint("Coincident", 5, 2, 6, 1),
    Sketcher.Constraint("Coincident", 6, 2, 7, 1),
    Sketcher.Constraint("Coincident", 7, 2, 4, 1),
    Sketcher.Constraint("Coincident", 8, 2, 9, 1),
    Sketcher.Constraint("Coincident", 9, 2, 10, 1),
    Sketcher.Constraint("Coincident", 10, 2, 11, 1),
    Sketcher.Constraint("Coincident", 11, 2, 8, 1),
    Sketcher.Constraint("Coincident", 12, 2, 13, 1),
    Sketcher.Constraint("Coincident", 13, 2, 14, 1),
    Sketcher.Constraint("Coincident", 14, 2, 15, 1),
    Sketcher.Constraint("Coincident", 15, 2, 12, 1),
    Sketcher.Constraint("Coincident", 16, 2, 17, 1),
    Sketcher.Constraint("Coincident", 17, 2, 18, 1),
    Sketcher.Constraint("Coincident", 18, 2, 19, 1),
    Sketcher.Constraint("Coincident", 19, 2, 16, 1),
    Sketcher.Constraint("Vertical", 0),
    Sketcher.Constraint("Horizontal", 1),
    Sketcher.Constraint("Vertical", 2),
    Sketcher.Constraint("Horizontal", 3),
    Sketcher.Constraint("Vertical", 4),
    Sketcher.Constraint("Horizontal", 5),
    Sketcher.Constraint("Vertical", 6),
    Sketcher.Constraint("Horizontal", 7),
    Sketcher.Constraint("Vertical", 8),
    Sketcher.Constraint("Horizontal", 9),
    Sketcher.Constraint("Vertical", 10),
    Sketcher.Constraint("Horizontal", 11),
    Sketcher.Constraint("Vertical", 12),
    Sketcher.Constraint("Horizontal", 13),
    Sketcher.Constraint("Vertical", 14),
    Sketcher.Constraint("Horizontal", 15),
    Sketcher.Constraint("Vertical", 16),
    Sketcher.Constraint("Horizontal", 17),
    Sketcher.Constraint("Vertical", 18),
    Sketcher.Constraint("Horizontal", 19),
    Sketcher.Constraint("Horizontal", 1, 2, 4, 2),
    Sketcher.Constraint("Horizontal", 3, 2, 6, 2),
    Sketcher.Constraint("Horizontal", 5, 2, 8, 2),
    Sketcher.Constraint("Horizontal", 7, 2, 10, 2),
    Sketcher.Constraint("Horizontal", 9, 2, 12, 2),
    Sketcher.Constraint("Horizontal", 11, 2, 14, 2),
    Sketcher.Constraint("Horizontal", 13, 2, 16, 2),
    Sketcher.Constraint("Horizontal", 15, 2, 18, 2),
    Sketcher.Constraint("Equal", 3, 5),
    Sketcher.Constraint("Equal", 7, 9),
    Sketcher.Constraint("Equal", 11, 13),
    Sketcher.Constraint("Equal", 15, 17),
    Sketcher.Constraint("DistanceX", 1, 1, 1, 2, 1.5),
    Sketcher.Constraint("DistanceY", 0, 1, 0, 2, 1.25),
    Sketcher.Constraint("DistanceX", 0, 2, -1, 1, 18.04),
    Sketcher.Constraint("DistanceY", 0, 2, -1, 1, 8.26),
    Sketcher.Constraint("DistanceX", 8, 2, -1, 1, 5.99),
    Sketcher.Constraint("DistanceX", -1, 1, 16, 2, 6.06),
    Sketcher.Constraint("DistanceX", 5, 2, 12, 2, 10.55),
    Sketcher.Constraint("DistanceX", 4, 2, -1, 1, 12.015),
])
sketch11.setExpression("Constraints[52]", "Params.sketch11_width")
sketch11.setExpression("Constraints[53]", "Params.sketch11_height")
pad8 = doc.addObject("PartDesign::Pad", "Pad007")
body.addObject(pad8)
pad8.Profile = sketch11
pad8.setExpression("Length", "Params.pad8_length")
pad8.Reversed = True

doc.recompute()
